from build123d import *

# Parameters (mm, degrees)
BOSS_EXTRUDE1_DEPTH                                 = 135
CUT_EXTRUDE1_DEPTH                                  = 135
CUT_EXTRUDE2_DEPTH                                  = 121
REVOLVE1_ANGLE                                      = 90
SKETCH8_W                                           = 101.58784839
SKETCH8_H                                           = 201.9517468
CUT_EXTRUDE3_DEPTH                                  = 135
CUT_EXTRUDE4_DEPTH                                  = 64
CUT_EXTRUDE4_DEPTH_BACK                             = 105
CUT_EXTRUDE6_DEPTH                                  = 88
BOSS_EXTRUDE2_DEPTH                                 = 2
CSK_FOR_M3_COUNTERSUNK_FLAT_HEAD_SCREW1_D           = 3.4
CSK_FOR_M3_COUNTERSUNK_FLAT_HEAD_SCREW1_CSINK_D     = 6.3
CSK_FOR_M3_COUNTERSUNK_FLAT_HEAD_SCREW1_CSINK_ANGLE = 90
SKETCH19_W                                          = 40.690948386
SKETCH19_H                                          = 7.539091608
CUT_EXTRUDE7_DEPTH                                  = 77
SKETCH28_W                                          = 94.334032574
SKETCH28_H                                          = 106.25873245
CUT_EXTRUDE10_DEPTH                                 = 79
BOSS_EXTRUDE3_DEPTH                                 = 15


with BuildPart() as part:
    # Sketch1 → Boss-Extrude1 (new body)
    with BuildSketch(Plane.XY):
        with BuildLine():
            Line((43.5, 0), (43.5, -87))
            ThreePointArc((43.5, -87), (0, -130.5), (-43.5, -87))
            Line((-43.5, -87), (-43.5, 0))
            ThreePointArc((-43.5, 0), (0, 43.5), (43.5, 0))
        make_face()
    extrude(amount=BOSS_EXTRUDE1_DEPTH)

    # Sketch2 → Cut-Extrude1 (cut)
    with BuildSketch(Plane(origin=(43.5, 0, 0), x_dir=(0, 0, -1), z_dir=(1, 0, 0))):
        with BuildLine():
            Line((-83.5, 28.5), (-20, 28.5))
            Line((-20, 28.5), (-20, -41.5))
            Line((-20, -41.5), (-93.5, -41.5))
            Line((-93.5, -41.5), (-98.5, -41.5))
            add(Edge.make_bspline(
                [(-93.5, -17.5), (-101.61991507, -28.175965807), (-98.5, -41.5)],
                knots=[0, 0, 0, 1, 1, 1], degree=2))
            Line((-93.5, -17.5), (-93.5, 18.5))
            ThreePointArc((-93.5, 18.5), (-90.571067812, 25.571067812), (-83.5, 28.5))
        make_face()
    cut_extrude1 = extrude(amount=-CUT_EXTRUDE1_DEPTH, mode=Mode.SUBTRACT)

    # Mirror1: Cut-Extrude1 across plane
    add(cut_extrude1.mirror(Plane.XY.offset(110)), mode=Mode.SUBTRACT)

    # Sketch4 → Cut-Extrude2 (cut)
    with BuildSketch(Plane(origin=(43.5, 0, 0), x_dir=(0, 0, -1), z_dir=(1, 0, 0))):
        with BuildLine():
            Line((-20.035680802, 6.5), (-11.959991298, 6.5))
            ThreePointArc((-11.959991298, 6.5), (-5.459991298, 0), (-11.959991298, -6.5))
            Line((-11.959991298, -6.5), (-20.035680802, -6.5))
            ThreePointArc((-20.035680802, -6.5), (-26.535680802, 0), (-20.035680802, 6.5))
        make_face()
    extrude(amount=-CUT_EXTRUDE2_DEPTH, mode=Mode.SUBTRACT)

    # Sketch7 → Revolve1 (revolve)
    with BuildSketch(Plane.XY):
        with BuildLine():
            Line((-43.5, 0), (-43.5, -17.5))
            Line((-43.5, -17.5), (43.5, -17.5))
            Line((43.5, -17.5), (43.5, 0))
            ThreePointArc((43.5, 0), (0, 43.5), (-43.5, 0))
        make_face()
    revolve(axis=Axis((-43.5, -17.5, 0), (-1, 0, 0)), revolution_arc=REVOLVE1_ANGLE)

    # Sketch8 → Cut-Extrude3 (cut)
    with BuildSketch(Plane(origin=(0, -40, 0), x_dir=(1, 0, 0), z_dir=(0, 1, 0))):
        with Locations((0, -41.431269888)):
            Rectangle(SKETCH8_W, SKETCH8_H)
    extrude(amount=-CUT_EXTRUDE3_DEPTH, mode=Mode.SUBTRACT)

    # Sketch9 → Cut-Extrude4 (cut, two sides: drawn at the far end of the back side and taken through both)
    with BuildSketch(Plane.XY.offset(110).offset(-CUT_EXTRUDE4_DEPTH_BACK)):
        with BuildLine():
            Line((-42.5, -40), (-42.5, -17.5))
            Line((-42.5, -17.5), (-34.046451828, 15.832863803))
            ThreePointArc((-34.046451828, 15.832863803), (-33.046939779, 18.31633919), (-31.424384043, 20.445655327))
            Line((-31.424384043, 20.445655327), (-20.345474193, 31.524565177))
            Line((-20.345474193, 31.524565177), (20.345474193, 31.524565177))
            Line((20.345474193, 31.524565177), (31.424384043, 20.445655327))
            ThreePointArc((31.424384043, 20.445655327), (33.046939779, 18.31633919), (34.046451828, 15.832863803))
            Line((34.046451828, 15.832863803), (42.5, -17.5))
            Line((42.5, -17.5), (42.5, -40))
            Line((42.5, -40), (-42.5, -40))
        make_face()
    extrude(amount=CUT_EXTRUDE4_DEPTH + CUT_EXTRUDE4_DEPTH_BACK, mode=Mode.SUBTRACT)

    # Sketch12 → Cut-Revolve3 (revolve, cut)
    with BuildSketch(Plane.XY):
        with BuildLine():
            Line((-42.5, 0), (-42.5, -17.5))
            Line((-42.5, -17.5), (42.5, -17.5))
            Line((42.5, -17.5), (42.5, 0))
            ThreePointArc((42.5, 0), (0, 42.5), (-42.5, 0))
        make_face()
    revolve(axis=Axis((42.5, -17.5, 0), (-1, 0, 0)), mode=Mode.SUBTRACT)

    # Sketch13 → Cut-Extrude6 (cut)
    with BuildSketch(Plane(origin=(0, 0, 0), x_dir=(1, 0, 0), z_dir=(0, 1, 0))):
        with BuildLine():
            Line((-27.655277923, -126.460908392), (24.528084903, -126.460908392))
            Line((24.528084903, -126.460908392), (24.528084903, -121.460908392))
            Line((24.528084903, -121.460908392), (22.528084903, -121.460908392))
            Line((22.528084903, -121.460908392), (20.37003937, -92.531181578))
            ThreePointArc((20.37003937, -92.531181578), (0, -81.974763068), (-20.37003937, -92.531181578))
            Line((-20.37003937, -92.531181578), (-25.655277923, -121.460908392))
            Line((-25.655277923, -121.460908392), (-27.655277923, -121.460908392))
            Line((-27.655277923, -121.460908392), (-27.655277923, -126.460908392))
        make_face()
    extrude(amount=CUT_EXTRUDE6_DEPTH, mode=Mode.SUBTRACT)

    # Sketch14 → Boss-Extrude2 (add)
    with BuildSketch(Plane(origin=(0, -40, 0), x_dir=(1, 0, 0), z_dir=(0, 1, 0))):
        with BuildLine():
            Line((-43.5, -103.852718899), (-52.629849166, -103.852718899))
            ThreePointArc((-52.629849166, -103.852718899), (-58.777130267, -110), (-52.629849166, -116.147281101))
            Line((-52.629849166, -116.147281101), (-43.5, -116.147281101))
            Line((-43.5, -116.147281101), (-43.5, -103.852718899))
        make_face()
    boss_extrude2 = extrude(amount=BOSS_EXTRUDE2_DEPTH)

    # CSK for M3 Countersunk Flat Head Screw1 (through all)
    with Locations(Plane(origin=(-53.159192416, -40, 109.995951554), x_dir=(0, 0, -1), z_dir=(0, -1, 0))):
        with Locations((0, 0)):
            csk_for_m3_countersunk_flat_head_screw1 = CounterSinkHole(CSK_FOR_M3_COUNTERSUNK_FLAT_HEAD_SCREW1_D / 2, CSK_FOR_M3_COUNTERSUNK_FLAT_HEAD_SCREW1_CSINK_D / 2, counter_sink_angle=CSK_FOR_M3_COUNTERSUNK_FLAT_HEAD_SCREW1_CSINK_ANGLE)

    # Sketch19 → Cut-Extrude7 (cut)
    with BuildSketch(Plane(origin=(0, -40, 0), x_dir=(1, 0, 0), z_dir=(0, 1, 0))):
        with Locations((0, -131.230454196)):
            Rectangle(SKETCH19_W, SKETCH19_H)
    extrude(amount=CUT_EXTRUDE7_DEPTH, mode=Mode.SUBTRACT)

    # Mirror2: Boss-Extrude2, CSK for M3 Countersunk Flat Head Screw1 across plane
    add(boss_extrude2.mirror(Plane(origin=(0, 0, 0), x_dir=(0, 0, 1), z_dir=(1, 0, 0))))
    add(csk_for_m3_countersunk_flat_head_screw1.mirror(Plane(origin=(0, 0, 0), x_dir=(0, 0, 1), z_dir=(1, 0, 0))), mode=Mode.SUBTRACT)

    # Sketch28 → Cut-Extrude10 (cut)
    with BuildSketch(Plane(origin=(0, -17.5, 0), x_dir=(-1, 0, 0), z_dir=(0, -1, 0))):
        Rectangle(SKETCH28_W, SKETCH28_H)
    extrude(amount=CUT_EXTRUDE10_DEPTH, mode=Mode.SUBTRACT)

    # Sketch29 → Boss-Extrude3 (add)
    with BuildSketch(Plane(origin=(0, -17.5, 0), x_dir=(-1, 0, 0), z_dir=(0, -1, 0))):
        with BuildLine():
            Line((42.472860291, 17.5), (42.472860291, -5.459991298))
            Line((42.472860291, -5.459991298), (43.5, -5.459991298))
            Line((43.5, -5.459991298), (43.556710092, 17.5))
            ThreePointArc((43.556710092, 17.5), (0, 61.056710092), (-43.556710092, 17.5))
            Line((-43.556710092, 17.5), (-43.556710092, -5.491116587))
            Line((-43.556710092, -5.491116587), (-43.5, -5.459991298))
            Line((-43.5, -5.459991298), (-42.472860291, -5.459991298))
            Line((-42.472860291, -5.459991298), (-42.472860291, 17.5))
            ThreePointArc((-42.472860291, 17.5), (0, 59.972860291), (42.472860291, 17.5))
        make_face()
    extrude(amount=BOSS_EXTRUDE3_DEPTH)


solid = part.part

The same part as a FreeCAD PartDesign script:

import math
import FreeCAD as App
import Part
import Sketcher
from FreeCAD import Vector

doc = App.newDocument("Part")
params = doc.addObject("Spreadsheet::Sheet", "Params")
for row, (alias, value) in enumerate([
    ("sketch1_radius", "43.5 mm"),
    ("sketch1_height", "87 mm"),
    ("pad1_length", "135 mm"),
    ("sketch2_radius", "10 mm"),
    ("sketch2_width", "36 mm"),
    ("sketch2_height", "63.5 mm"),
    ("pocket1_length", "135 mm"),
    ("sketch3_radius", "6.5 mm"),
    ("pocket2_length", "121 mm"),
    ("sketch4_radius", "43.5 mm"),
    ("sketch4_height", "17.5 mm"),
    ("revolution_angle", "90 deg"),
    ("pocket3_length", "135 mm"),
    ("sketch6_radius", "10 mm"),
    ("sketch6_width", "85 mm"),
    ("sketch6_height", "22.5 mm"),
    ("pocket4_length", "64 mm"),
    ("pocket4_length2", "105 mm"),
    ("sketch7_radius", "42.5 mm"),
    ("sketch7_height", "17.5 mm"),
    ("groove_angle", "360 deg"),
    ("sketch8_width", "2 mm"),
    ("sketch8_height", "5 mm"),
    ("pocket5_length", "88 mm"),
    ("pad2_length", "2 mm"),
    ("sketch10_diameter", "3.4 mm"),
    ("hole_diameter", "3.4 mm"),
    ("hole_csink_diameter", "6.3 mm"),
    ("pocket6_length", "77 mm"),
    ("pocket7_length", "79 mm"),
    ("pad3_length", "15 mm"),
], start=1):
    params.set(f"A{row}", alias)
    params.set(f"B{row}", "=" + value)
    params.setAlias(f"B{row}", alias)

body = doc.addObject("PartDesign::Body", "Body")

# Sketch on XY plane
sketch1 = body.newObject("Sketcher::SketchObject", "Sketch")
sketch1.AttachmentSupport = (doc.getObject("XY_Plane"), [""])
sketch1.MapMode = "FlatFace"
sketch1.addGeometry([
    Part.LineSegment(Vector(43.5, -87, 0), Vector(43.5, 0, 0)),
    Part.ArcOfCircle(Part.Circle(Vector(0, 0, 0), Vector(0, 0, 1), 43.5), math.radians(0), math.radians(180)),
    Part.LineSegment(Vector(-43.5, 0, 0), Vector(-43.5, -87, 0)),
    Part.ArcOfCircle(Part.Circle(Vector(0, -87, 0), Vector(0, 0, 1), 43.5), math.radians(180), math.radians(360)),
], False)
sketch1.addConstraint([
    Sketcher.Constraint("Tangent", 0, 2, 1, 1),
    Sketcher.Constraint("Tangent", 1, 2, 2, 1),
    Sketcher.Constraint("Tangent", 2, 2, 3, 1),
    Sketcher.Constraint("Tangent", 3, 2, 0, 1),
    Sketcher.Constraint("Vertical", 0),
    Sketcher.Constraint("Vertical", 2),
    Sketcher.Constraint("Coincident", 1, 3, -1, 1),
    Sketcher.Constraint("Radius", 1, 43.5),
    Sketcher.Constraint("DistanceY", 0, 1, 0, 2, 87.0),
])
sketch1.setExpression("Constraints[7]", "Params.sketch1_radius")
sketch1.setExpression("Constraints[8]", "Params.sketch1_height")
pad1 = body.newObject("PartDesign::Pad", "Pad")
pad1.Profile = sketch1
pad1.setExpression("Length", "Params.pad1_length")

# Sketch on YZ plane
sketch2 = body.newObject("Sketcher::SketchObject", "Sketch001")
sketch2.AttachmentSupport = (doc.getObject("YZ_Plane"), [""])
sketch2.MapMode = "FlatFace"
sketch2.AttachmentOffset = App.Placement(Vector(0, 0, 43.5), App.Rotation())
sketch2.addGeometry([
    Part.LineSegment(Vector(28.5, 20, 0), Vector(28.5, 83.5, 0)),  # 0
    Part.ArcOfCircle(Part.Circle(Vector(18.5, 83.5, 0), Vector(0, 0, 1), 10), math.radians(0), math.radians(90)),  # 1
    Part.LineSegment(Vector(18.5, 93.5, 0), Vector(-17.5, 93.5, 0)),  # 2
    Part.BSplineCurve([Vector(-17.5, 93.5, 0), Vector(-28.175966, 101.619915, 0), Vector(-41.5, 98.5, 0)], [3, 3], [0, 1], False, 2, [1, 1, 1], False),  # 3
    Part.LineSegment(Vector(-41.5, 98.5, 0), Vector(-41.5, 20, 0)),  # 4
    Part.LineSegment(Vector(-41.5, 20, 0), Vector(28.5, 20, 0)),  # 5
], False)
sketch2.addConstraint([
    Sketcher.Constraint("Block", 3),
    Sketcher.Constraint("Tangent", 0, 2, 1, 1),
    Sketcher.Constraint("Tangent", 1, 2, 2, 1),
    Sketcher.Constraint("Coincident", 2, 2, 3, 1),
    Sketcher.Constraint("Coincident", 3, 2, 4, 1),
    Sketcher.Constraint("Coincident", 4, 2, 5, 1),
    Sketcher.Constraint("Coincident", 5, 2, 0, 1),
    Sketcher.Constraint("Vertical", 0),
    Sketcher.Constraint("Horizontal", 2),
    Sketcher.Constraint("Vertical", 4),
    Sketcher.Constraint("Horizontal", 5),
    Sketcher.Constraint("Radius", 1, 10.0),
    Sketcher.Constraint("DistanceX", 2, 2, 2, 1, 36.0),
    Sketcher.Constraint("DistanceY", 0, 1, 0, 2, 63.5),
])
sketch2.setExpression("Constraints[11]", "Params.sketch2_radius")
sketch2.setExpression("Constraints[12]", "Params.sketch2_width")
sketch2.setExpression("Constraints[13]", "Params.sketch2_height")
pocket1 = body.newObject("PartDesign::Pocket", "Pocket")
pocket1.Profile = sketch2
pocket1.setExpression("Length", "Params.pocket1_length")
doc.recompute()

datumplane = body.newObject("PartDesign::Plane", "DatumPlane")
datumplane.AttachmentSupport = (doc.getObject("XY_Plane"), [""])
datumplane.MapMode = "FlatFace"
datumplane.AttachmentOffset = App.Placement(Vector(0, 0, 110), App.Rotation())
mirrored = body.newObject("PartDesign::Mirrored", "Mirrored")
mirrored.Originals = [pocket1]
mirrored.MirrorPlane = (datumplane, [""])
body.Tip = mirrored

# Sketch on YZ plane
sketch3 = body.newObject("Sketcher::SketchObject", "Sketch002")
sketch3.AttachmentSupport = (doc.getObject("YZ_Plane"), [""])
sketch3.MapMode = "FlatFace"
sketch3.AttachmentOffset = App.Placement(Vector(0, 0, 43.5), App.Rotation())
sketch3.addGeometry([
    Part.LineSegment(Vector(6.5, 11.959991, 0), Vector(6.5, 20.035681, 0)),
    Part.ArcOfCircle(Part.Circle(Vector(0, 20.035681, 0), Vector(0, 0, 1), 6.5), math.radians(0), math.radians(180)),
    Part.LineSegment(Vector(-6.5, 20.035681, 0), Vector(-6.5, 11.959991, 0)),
    Part.ArcOfCircle(Part.Circle(Vector(0, 11.959991, 0), Vector(0, 0, 1), 6.5), math.radians(180), math.radians(360)),
], False)
sketch3.addConstraint([
    Sketcher.Constraint("Tangent", 0, 2, 1, 1),
    Sketcher.Constraint("Tangent", 1, 2, 2, 1),
    Sketcher.Constraint("Tangent", 2, 2, 3, 1),
    Sketcher.Constraint("Tangent", 3, 2, 0, 1),
    Sketcher.Constraint("Vertical", 0),
    Sketcher.Constraint("Vertical", 2),
    Sketcher.Constraint("PointOnObject", 1, 3, -2),
    Sketcher.Constraint("Radius", 1, 6.5),
    Sketcher.Constraint("DistanceY", 0, 1, 0, 2, 8.07569),
    Sketcher.Constraint("DistanceY", -1, 1, 1, 3, 20.035681),
])
sketch3.setExpression("Constraints[7]", "Params.sketch3_radius")
pocket2 = body.newObject("PartDesign::Pocket", "Pocket001")
pocket2.Profile = sketch3
pocket2.setExpression("Length", "Params.pocket2_length")

# Sketch on XY plane
sketch4 = body.newObject("Sketcher::SketchObject", "Sketch003")
sketch4.AttachmentSupport = (doc.getObject("XY_Plane"), [""])
sketch4.MapMode = "FlatFace"
sketch4.addGeometry([
    Part.LineSegment(Vector(-43.5, 0, 0), Vector(-43.5, -17.5, 0)),
    Part.LineSegment(Vector(-43.5, -17.5, 0), Vector(43.5, -17.5, 0)),
    Part.LineSegment(Vector(43.5, -17.5, 0), Vector(43.5, 0, 0)),
    Part.ArcOfCircle(Part.Circle(Vector(0, 0, 0), Vector(0, 0, 1), 43.5), math.radians(0), math.radians(180)),
], False)
sketch4.addGeometry(Part.LineSegment(Vector(43.5, -17.5, 0), Vector(-43.5, -17.5, 0)), True)  # axis
sketch4.addConstraint([
    Sketcher.Constraint("Coincident", 0, 2, 1, 1),
    Sketcher.Constraint("Coincident", 1, 2, 2, 1),
    Sketcher.Constraint("Tangent", 2, 2, 3, 1),
    Sketcher.Constraint("Tangent", 3, 2, 0, 1),
    Sketcher.Constraint("Vertical", 0),
    Sketcher.Constraint("Horizontal", 1),
    Sketcher.Constraint("Vertical", 2),
    Sketcher.Constraint("Horizontal", 4),
    Sketcher.Constraint("Coincident", 3, 3, -1, 1),
    Sketcher.Constraint("Coincident", 4, 1, 1, 2),
    Sketcher.Constraint("Vertical", 3, 2, 4, 2),
    Sketcher.Constraint("Radius", 3, 43.5),
    Sketcher.Constraint("DistanceY", 0, 2, 0, 1, 17.5),
])
sketch4.setExpression("Constraints[11]", "Params.sketch4_radius")
sketch4.setExpression("Constraints[12]", "Params.sketch4_height")
revolution = body.newObject("PartDesign::Revolution", "Revolution")
revolution.Profile = sketch4
revolution.ReferenceAxis = (sketch4, ["Axis0"])
revolution.setExpression("Angle", "Params.revolution_angle")

# Sketch on XZ plane
sketch5 = body.newObject("Sketcher::SketchObject", "Sketch004")
sketch5.AttachmentSupport = (doc.getObject("XZ_Plane"), [""])
sketch5.MapMode = "FlatFace"
sketch5.AttachmentOffset = App.Placement(Vector(0, 0, 40), App.Rotation())
sketch5.addGeometry([
    Part.LineSegment(Vector(-50.793924, -59.544604, 0), Vector(-50.793924, 142.407143, 0)),
    Part.LineSegment(Vector(-50.793924, 142.407143, 0), Vector(50.793924, 142.407143, 0)),
    Part.LineSegment(Vector(50.793924, 142.407143, 0), Vector(50.793924, -59.544604, 0)),
    Part.LineSegment(Vector(50.793924, -59.544604, 0), Vector(-50.793924, -59.544604, 0)),
], False)
sketch5.addConstraint([
    Sketcher.Constraint("Coincident", 0, 2, 1, 1),
    Sketcher.Constraint("Coincident", 1, 2, 2, 1),
    Sketcher.Constraint("Coincident", 2, 2, 3, 1),
    Sketcher.Constraint("Coincident", 3, 2, 0, 1),
    Sketcher.Constraint("Vertical", 0),
    Sketcher.Constraint("Horizontal", 1),
    Sketcher.Constraint("Vertical", 2),
    Sketcher.Constraint("Horizontal", 3),
    Sketcher.Constraint("DistanceX", 1, 1, 1, 2, 101.587848),
    Sketcher.Constraint("DistanceY", 0, 1, 0, 2, 201.951747),
    Sketcher.Constraint("DistanceX", 0, 2, -1, 1, 50.793924),
    Sketcher.Constraint("DistanceY", -1, 1, 0, 2, 142.407143),
])
pocket3 = body.newObject("PartDesign::Pocket", "Pocket002")
pocket3.Profile = sketch5
pocket3.setExpression("Length", "Params.pocket3_length")
pocket3.Reversed = True

# Sketch on XY plane
sketch6 = body.newObject("Sketcher::SketchObject", "Sketch005")
sketch6.AttachmentSupport = (doc.getObject("XY_Plane"), [""])
sketch6.MapMode = "FlatFace"
sketch6.AttachmentOffset = App.Placement(Vector(0, 0, 110), App.Rotation())
sketch6.addGeometry([
    Part.LineSegment(Vector(-42.5, -17.5, 0), Vector(-42.5, -40, 0)),  # 0
    Part.LineSegment(Vector(-42.5, -40, 0), Vector(42.5, -40, 0)),  # 1
    Part.LineSegment(Vector(42.5, -40, 0), Vector(42.5, -17.5, 0)),  # 2
    Part.LineSegment(Vector(42.5, -17.5, 0), Vector(34.046452, 15.832864, 0)),  # 3
    Part.ArcOfCircle(Part.Circle(Vector(24.353316, 13.374588, 0), Vector(0, 0, 1), 10), math.radians(14.230749), math.radians(45)),  # 4
    Part.LineSegment(Vector(31.424384, 20.445655, 0), Vector(20.345474, 31.524565, 0)),  # 5
    Part.LineSegment(Vector(20.345474, 31.524565, 0), Vector(-20.345474, 31.524565, 0)),  # 6
    Part.LineSegment(Vector(-20.345474, 31.524565, 0), Vector(-31.424384, 20.445655, 0)),  # 7
    Part.ArcOfCircle(Part.Circle(Vector(-24.353316, 13.374588, 0), Vector(0, 0, 1), 10), math.radians(135), math.radians(165.769251)),  # 8
    Part.LineSegment(Vector(-34.046452, 15.832864, 0), Vector(-42.5, -17.5, 0)),  # 9
], False)
sketch6.addConstraint([
    Sketcher.Constraint("Coincident", 0, 2, 1, 1),
    Sketcher.Constraint("Coincident", 1, 2, 2, 1),
    Sketcher.Constraint("Coincident", 2, 2, 3, 1),
    Sketcher.Constraint("Tangent", 3, 2, 4, 1),
    Sketcher.Constraint("Tangent", 4, 2, 5, 1),
    Sketcher.Constraint("Coincident", 5, 2, 6, 1),
    Sketcher.Constraint("Coincident", 6, 2, 7, 1),
    Sketcher.Constraint("Tangent", 7, 2, 8, 1),
    Sketcher.Constraint("Tangent", 8, 2, 9, 1),
    Sketcher.Constraint("Coincident", 9, 2, 0, 1),
    Sketcher.Constraint("Vertical", 0),
    Sketcher.Constraint("Horizontal", 1),
    Sketcher.Constraint("Vertical", 2),
    Sketcher.Constraint("Horizontal", 6),
    Sketcher.Constraint("Equal", 4, 8),
    Sketcher.Constraint("Symmetric", 4, 3, 8, 3, -2),
    Sketcher.Constraint("Symmetric", 2, 2, 9, 2, -2),
    Sketcher.Constraint("Perpendicular", 5, 7),
    Sketcher.Constraint("Horizontal", 4, 2, 7, 2),
    Sketcher.Constraint("Radius", 4, 10.0),
    Sketcher.Constraint("DistanceX", 1, 1, 1, 2, 85.0),
    Sketcher.Constraint("DistanceY", 0, 2, 0, 1, 22.5),
    Sketcher.Constraint("DistanceY", 0, 2, -1, 1, 40.0),
    Sketcher.Constraint("DistanceX", 6, 2, 6, 1, 40.690948),
    Sketcher.Constraint("DistanceX", 8, 3, 4, 2, 55.7777),
    Sketcher.Constraint("DistanceY", 3, 2, 5, 2, 15.691701),
])
sketch6.setExpression("Constraints[19]", "Params.sketch6_radius")
sketch6.setExpression("Constraints[20]", "Params.sketch6_width")
sketch6.setExpression("Constraints[21]", "Params.sketch6_height")
pocket4 = body.newObject("PartDesign::Pocket", "Pocket003")
pocket4.Profile = sketch6
pocket4.Type = "TwoLengths"
pocket4.setExpression("Length", "Params.pocket4_length")
pocket4.setExpression("Length2", "Params.pocket4_length2")
pocket4.Reversed = True

# Sketch on XY plane
sketch7 = body.newObject("Sketcher::SketchObject", "Sketch006")
sketch7.AttachmentSupport = (doc.getObject("XY_Plane"), [""])
sketch7.MapMode = "FlatFace"
sketch7.addGeometry([
    Part.LineSegment(Vector(-42.5, 0, 0), Vector(-42.5, -17.5, 0)),
    Part.LineSegment(Vector(-42.5, -17.5, 0), Vector(42.5, -17.5, 0)),
    Part.LineSegment(Vector(42.5, -17.5, 0), Vector(42.5, 0, 0)),
    Part.ArcOfCircle(Part.Circle(Vector(0, 0, 0), Vector(0, 0, 1), 42.5), math.radians(0), math.radians(180)),
], False)
sketch7.addGeometry(Part.LineSegment(Vector(42.5, -17.5, 0), Vector(-42.5, -17.5, 0)), True)  # axis
sketch7.addConstraint([
    Sketcher.Constraint("Coincident", 0, 2, 1, 1),
    Sketcher.Constraint("Coincident", 1, 2, 2, 1),
    Sketcher.Constraint("Tangent", 2, 2, 3, 1),
    Sketcher.Constraint("Tangent", 3, 2, 0, 1),
    Sketcher.Constraint("Vertical", 0),
    Sketcher.Constraint("Horizontal", 1),
    Sketcher.Constraint("Vertical", 2),
    Sketcher.Constraint("Horizontal", 4),
    Sketcher.Constraint("Coincident", 3, 3, -1, 1),
    Sketcher.Constraint("Coincident", 4, 1, 1, 2),
    Sketcher.Constraint("Vertical", 3, 2, 4, 2),
    Sketcher.Constraint("Radius", 3, 42.5),
    Sketcher.Constraint("DistanceY", 0, 2, 0, 1, 17.5),
])
sketch7.setExpression("Constraints[11]", "Params.sketch7_radius")
sketch7.setExpression("Constraints[12]", "Params.sketch7_height")
groove = body.newObject("PartDesign::Groove", "Groove")
groove.Profile = sketch7
groove.ReferenceAxis = (sketch7, ["Axis0"])
groove.setExpression("Angle", "Params.groove_angle")

# Sketch on XZ plane
sketch8 = body.newObject("Sketcher::SketchObject", "Sketch007")
sketch8.AttachmentSupport = (doc.getObject("XZ_Plane"), [""])
sketch8.MapMode = "FlatFace"
sketch8.addGeometry([
    Part.LineSegment(Vector(-27.655278, 126.460908, 0), Vector(24.528085, 126.460908, 0)),  # 0
    Part.LineSegment(Vector(24.528085, 126.460908, 0), Vector(24.528085, 121.460908, 0)),  # 1
    Part.LineSegment(Vector(24.528085, 121.460908, 0), Vector(22.528085, 121.460908, 0)),  # 2
    Part.LineSegment(Vector(22.528085, 121.460908, 0), Vector(20.370039, 92.531182, 0)),  # 3
    Part.ArcOfCircle(Part.Circle(Vector(0, 106.906347, 0), Vector(0, 0, 1), 24.931584), math.radians(-144.789327), math.radians(-35.210673)),  # 4
    Part.LineSegment(Vector(-20.370039, 92.531182, 0), Vector(-25.655278, 121.460908, 0)),  # 5
    Part.LineSegment(Vector(-25.655278, 121.460908, 0), Vector(-27.655278, 121.460908, 0)),  # 6
    Part.LineSegment(Vector(-27.655278, 121.460908, 0), Vector(-27.655278, 126.460908, 0)),  # 7
], False)
sketch8.addConstraint([
    Sketcher.Constraint("Coincident", 0, 2, 1, 1),
    Sketcher.Constraint("Coincident", 1, 2, 2, 1),
    Sketcher.Constraint("Coincident", 2, 2, 3, 1),
    Sketcher.Constraint("Coincident", 3, 2, 4, 2),
    Sketcher.Constraint("Coincident", 4, 1, 5, 1),
    Sketcher.Constraint("Coincident", 5, 2, 6, 1),
    Sketcher.Constraint("Coincident", 6, 2, 7, 1),
    Sketcher.Constraint("Coincident", 7, 2, 0, 1),
    Sketcher.Constraint("Horizontal", 0),
    Sketcher.Constraint("Vertical", 1),
    Sketcher.Constraint("Horizontal", 2),
    Sketcher.Constraint("Horizontal", 6),
    Sketcher.Constraint("Vertical", 7),
    Sketcher.Constraint("Symmetric", 3, 2, 4, 1, -2),
    Sketcher.Constraint("Horizontal", 2, 2, 5, 2),
    Sketcher.Constraint("Equal", 2, 6),
    Sketcher.Constraint("DistanceX", 2, 2, 2, 1, 2.0),
    Sketcher.Constraint("DistanceY", 1, 2, 1, 1, 5.0),
    Sketcher.Constraint("Radius", 4, 24.931584),
    Sketcher.Constraint("Distance", 5, 29.40855),
    Sketcher.Constraint("DistanceX", 0, 1, 0, 2, 52.183363),
    Sketcher.Constraint("DistanceY", -1, 1, 0, 2, 126.460908),
    Sketcher.Constraint("DistanceX", -1, 1, 3, 2, 20.370039),
    Sketcher.Constraint("DistanceY", -1, 1, 3, 2, 92.531182),
])
sketch8.setExpression("Constraints[16]", "Params.sketch8_width")
sketch8.setExpression("Constraints[17]", "Params.sketch8_height")
pocket5 = body.newObject("PartDesign::Pocket", "Pocket004")
pocket5.Profile = sketch8
pocket5.setExpression("Length", "Params.pocket5_length")

# Sketch on XZ plane
sketch9 = body.newObject("Sketcher::SketchObject", "Sketch008")
sketch9.AttachmentSupport = (doc.getObject("XZ_Plane"), [""])
sketch9.MapMode = "FlatFace"
sketch9.AttachmentOffset = App.Placement(Vector(0, 0, 40), App.Rotation())
sketch9.addGeometry([
    Part.LineSegment(Vector(-43.5, 103.852719, 0), Vector(-52.629849, 103.852719, 0)),
    Part.ArcOfCircle(Part.Circle(Vector(-52.629849, 110, 0), Vector(0, 0, 1), 6.147281), math.radians(90), math.radians(270)),
    Part.LineSegment(Vector(-52.629849, 116.147281, 0), Vector(-43.5, 116.147281, 0)),
    Part.LineSegment(Vector(-43.5, 116.147281, 0), Vector(-43.5, 103.852719, 0)),
], False)
sketch9.addConstraint([
    Sketcher.Constraint("Tangent", 0, 2, 1, 2),
    Sketcher.Constraint("Tangent", 1, 1, 2, 1),
    Sketcher.Constraint("Coincident", 2, 2, 3, 1),
    Sketcher.Constraint("Coincident", 3, 2, 0, 1),
    Sketcher.Constraint("Horizontal", 0),
    Sketcher.Constraint("Horizontal", 2),
    Sketcher.Constraint("Vertical", 3),
    Sketcher.Constraint("DistanceY", -1, 1, 1, 3, 110.0),
    Sketcher.Constraint("DistanceX", 2, 2, -1, 1, 43.5),
    Sketcher.Constraint("Radius", 1, 6.147281),
    Sketcher.Constraint("DistanceX", 0, 2, 0, 1, 9.129849),
])
pad2 = body.newObject("PartDesign::Pad", "Pad001")
pad2.Profile = sketch9
pad2.setExpression("Length", "Params.pad2_length")
pad2.Reversed = True

# Sketch on XZ plane
sketch10 = body.newObject("Sketcher::SketchObject", "Sketch009")
sketch10.AttachmentSupport = (doc.getObject("XZ_Plane"), [""])
sketch10.MapMode = "FlatFace"
sketch10.AttachmentOffset = App.Placement(Vector(0, 0, 40), App.Rotation())
sketch10.addGeometry(Part.Circle(Vector(-53.159192, 109.995952, 0), Vector(0, 0, 1), 1.7), False)
sketch10.addConstraint([
    Sketcher.Constraint("Diameter", 0, 3.4),
    Sketcher.Constraint("DistanceY", -1, 1, 0, 3, 109.995952),
    Sketcher.Constraint("DistanceX", 0, 3, -1, 1, 53.159192),
])
sketch10.setExpression("Constraints[0]", "Params.sketch10_diameter")
doc.recompute()
hole = body.newObject("PartDesign::Hole", "Hole")
hole.Profile = sketch10
hole.ThreadType = "None"
hole.setExpression("Diameter", "Params.hole_diameter")
hole.DepthType = "ThroughAll"
hole.HoleCutType = "Countersink"
hole.setExpression("HoleCutDiameter", "Params.hole_csink_diameter")
hole.HoleCutCountersinkAngle = 90

# Sketch on XZ plane
sketch11 = body.newObject("Sketcher::SketchObject", "Sketch010")
sketch11.AttachmentSupport = (doc.getObject("XZ_Plane"), [""])
sketch11.MapMode = "FlatFace"
sketch11.AttachmentOffset = App.Placement(Vector(0, 0, 40), App.Rotation())
sketch11.addGeometry([
    Part.LineSegment(Vector(-20.345474, 127.460908, 0), Vector(-20.345474, 135, 0)),
    Part.LineSegment(Vector(-20.345474, 135, 0), Vector(20.345474, 135, 0)),
    Part.LineSegment(Vector(20.345474, 135, 0), Vector(20.345474, 127.460908, 0)),
    Part.LineSegment(Vector(20.345474, 127.460908, 0), Vector(-20.345474, 127.460908, 0)),
], False)
sketch11.addConstraint([
    Sketcher.Constraint("Coincident", 0, 2, 1, 1),
    Sketcher.Constraint("Coincident", 1, 2, 2, 1),
    Sketcher.Constraint("Coincident", 2, 2, 3, 1),
    Sketcher.Constraint("Coincident", 3, 2, 0, 1),
    Sketcher.Constraint("Vertical", 0),
    Sketcher.Constraint("Horizontal", 1),
    Sketcher.Constraint("Vertical", 2),
    Sketcher.Constraint("Horizontal", 3),
    Sketcher.Constraint("DistanceY", -1, 1, 0, 2, 135.0),
    Sketcher.Constraint("DistanceX", 1, 1, 1, 2, 40.690948),
    Sketcher.Constraint("DistanceY", 0, 1, 0, 2, 7.539092),
    Sketcher.Constraint("DistanceX", 0, 2, -1, 1, 20.345474),
])
pocket6 = body.newObject("PartDesign::Pocket", "Pocket005")
pocket6.Profile = sketch11
pocket6.setExpression("Length", "Params.pocket6_length")
doc.recompute()

mirrored2 = body.newObject("PartDesign::Mirrored", "Mirrored001")
mirrored2.Originals = [pad2, hole]
mirrored2.MirrorPlane = (doc.getObject("YZ_Plane"), [""])
body.Tip = mirrored2

# Sketch on XZ plane
sketch12 = body.newObject("Sketcher::SketchObject", "Sketch011")
sketch12.AttachmentSupport = (doc.getObject("XZ_Plane"), [""])
sketch12.MapMode = "FlatFace"
sketch12.AttachmentOffset = App.Placement(Vector(0, 0, 17.5), App.Rotation())
sketch12.addGeometry([
    Part.LineSegment(Vector(47.167016, -53.129366, 0), Vector(47.167016, 53.129366, 0)),
    Part.LineSegment(Vector(47.167016, 53.129366, 0), Vector(-47.167016, 53.129366, 0)),
    Part.LineSegment(Vector(-47.167016, 53.129366, 0), Vector(-47.167016, -53.129366, 0)),
    Part.LineSegment(Vector(-47.167016, -53.129366, 0), Vector(47.167016, -53.129366, 0)),
], False)
sketch12.addConstraint([
    Sketcher.Constraint("Coincident", 0, 2, 1, 1),
    Sketcher.Constraint("Coincident", 1, 2, 2, 1),
    Sketcher.Constraint("Coincident", 2, 2, 3, 1),
    Sketcher.Constraint("Coincident", 3, 2, 0, 1),
    Sketcher.Constraint("Vertical", 0),
    Sketcher.Constraint("Horizontal", 1),
    Sketcher.Constraint("Vertical", 2),
    Sketcher.Constraint("Horizontal", 3),
    Sketcher.Constraint("Symmetric", 0, 2, 2, 2, -1, 1),
    Sketcher.Constraint("DistanceX", 1, 2, 1, 1, 94.334033),
    Sketcher.Constraint("DistanceY", 0, 1, 0, 2, 106.258732),
])
pocket7 = body.newObject("PartDesign::Pocket", "Pocket006")
pocket7.Profile = sketch12
pocket7.setExpression("Length", "Params.pocket7_length")
pocket7.Reversed = True

# Sketch on XZ plane
sketch13 = body.newObject("Sketcher::SketchObject", "Sketch012")
sketch13.AttachmentSupport = (doc.getObject("XZ_Plane"), [""])
sketch13.MapMode = "FlatFace"
sketch13.AttachmentOffset = App.Placement(Vector(0, 0, 17.5), App.Rotation())
sketch13.addGeometry([
    Part.LineSegment(Vector(-42.47286, -17.5, 0), Vector(-42.47286, 5.459991, 0)),  # 0
    Part.LineSegment(Vector(-42.47286, 5.459991, 0), Vector(-43.5, 5.459991, 0)),  # 1
    Part.LineSegment(Vector(-43.5, 5.459991, 0), Vector(-43.55671, -17.5, 0)),  # 2
    Part.ArcOfCircle(Part.Circle(Vector(0, -17.5, 0), Vector(0, 0, 1), 43.55671), math.radians(180), math.radians(360)),  # 3
    Part.LineSegment(Vector(43.55671, -17.5, 0), Vector(43.55671, 5.491117, 0)),  # 4
    Part.LineSegment(Vector(43.55671, 5.491117, 0), Vector(43.5, 5.459991, 0)),  # 5
    Part.LineSegment(Vector(43.5, 5.459991, 0), Vector(42.47286, 5.459991, 0)),  # 6
    Part.LineSegment(Vector(42.47286, 5.459991, 0), Vector(42.47286, -17.5, 0)),  # 7
    Part.ArcOfCircle(Part.Circle(Vector(0, -17.5, 0), Vector(0, 0, 1), 42.47286), math.radians(180), math.radians(360)),  # 8
], False)
sketch13.addConstraint([
    Sketcher.Constraint("Coincident", 0, 2, 1, 1),
    Sketcher.Constraint("Coincident", 1, 2, 2, 1),
    Sketcher.Constraint("Coincident", 2, 2, 3, 1),
    Sketcher.Constraint("Tangent", 3, 2, 4, 1),
    Sketcher.Constraint("Coincident", 4, 2, 5, 1),
    Sketcher.Constraint("Coincident", 5, 2, 6, 1),
    Sketcher.Constraint("Coincident", 6, 2, 7, 1),
    Sketcher.Constraint("Tangent", 7, 2, 8, 2),
    Sketcher.Constraint("Tangent", 8, 1, 0, 1),
    Sketcher.Constraint("Vertical", 0),
    Sketcher.Constraint("Horizontal", 1),
    Sketcher.Constraint("Vertical", 4),
    Sketcher.Constraint("Horizontal", 6),
    Sketcher.Constraint("Vertical", 7),
    Sketcher.Constraint("Coincident", 8, 3, 3, 3),
    Sketcher.Constraint("Symmetric", 2, 2, 3, 2, -2),
    Sketcher.Constraint("Symmetric", 1, 2, 5, 2, -2),
    Sketcher.Constraint("DistanceY", 3, 3, -1, 1, 17.5),
    Sketcher.Constraint("DistanceX", 1, 2, -1, 1, 43.5),
    Sketcher.Constraint("Radius", 3, 43.55671),
    Sketcher.Constraint("Radius", 8, 42.47286),
    Sketcher.Constraint("DistanceY", 0, 1, 0, 2, 22.959991),
    Sketcher.Constraint("Distance", 5, 0.06469),
])
pad3 = body.newObject("PartDesign::Pad", "Pad002")
pad3.Profile = sketch13
pad3.setExpression("Length", "Params.pad3_length")

doc.recompute()
